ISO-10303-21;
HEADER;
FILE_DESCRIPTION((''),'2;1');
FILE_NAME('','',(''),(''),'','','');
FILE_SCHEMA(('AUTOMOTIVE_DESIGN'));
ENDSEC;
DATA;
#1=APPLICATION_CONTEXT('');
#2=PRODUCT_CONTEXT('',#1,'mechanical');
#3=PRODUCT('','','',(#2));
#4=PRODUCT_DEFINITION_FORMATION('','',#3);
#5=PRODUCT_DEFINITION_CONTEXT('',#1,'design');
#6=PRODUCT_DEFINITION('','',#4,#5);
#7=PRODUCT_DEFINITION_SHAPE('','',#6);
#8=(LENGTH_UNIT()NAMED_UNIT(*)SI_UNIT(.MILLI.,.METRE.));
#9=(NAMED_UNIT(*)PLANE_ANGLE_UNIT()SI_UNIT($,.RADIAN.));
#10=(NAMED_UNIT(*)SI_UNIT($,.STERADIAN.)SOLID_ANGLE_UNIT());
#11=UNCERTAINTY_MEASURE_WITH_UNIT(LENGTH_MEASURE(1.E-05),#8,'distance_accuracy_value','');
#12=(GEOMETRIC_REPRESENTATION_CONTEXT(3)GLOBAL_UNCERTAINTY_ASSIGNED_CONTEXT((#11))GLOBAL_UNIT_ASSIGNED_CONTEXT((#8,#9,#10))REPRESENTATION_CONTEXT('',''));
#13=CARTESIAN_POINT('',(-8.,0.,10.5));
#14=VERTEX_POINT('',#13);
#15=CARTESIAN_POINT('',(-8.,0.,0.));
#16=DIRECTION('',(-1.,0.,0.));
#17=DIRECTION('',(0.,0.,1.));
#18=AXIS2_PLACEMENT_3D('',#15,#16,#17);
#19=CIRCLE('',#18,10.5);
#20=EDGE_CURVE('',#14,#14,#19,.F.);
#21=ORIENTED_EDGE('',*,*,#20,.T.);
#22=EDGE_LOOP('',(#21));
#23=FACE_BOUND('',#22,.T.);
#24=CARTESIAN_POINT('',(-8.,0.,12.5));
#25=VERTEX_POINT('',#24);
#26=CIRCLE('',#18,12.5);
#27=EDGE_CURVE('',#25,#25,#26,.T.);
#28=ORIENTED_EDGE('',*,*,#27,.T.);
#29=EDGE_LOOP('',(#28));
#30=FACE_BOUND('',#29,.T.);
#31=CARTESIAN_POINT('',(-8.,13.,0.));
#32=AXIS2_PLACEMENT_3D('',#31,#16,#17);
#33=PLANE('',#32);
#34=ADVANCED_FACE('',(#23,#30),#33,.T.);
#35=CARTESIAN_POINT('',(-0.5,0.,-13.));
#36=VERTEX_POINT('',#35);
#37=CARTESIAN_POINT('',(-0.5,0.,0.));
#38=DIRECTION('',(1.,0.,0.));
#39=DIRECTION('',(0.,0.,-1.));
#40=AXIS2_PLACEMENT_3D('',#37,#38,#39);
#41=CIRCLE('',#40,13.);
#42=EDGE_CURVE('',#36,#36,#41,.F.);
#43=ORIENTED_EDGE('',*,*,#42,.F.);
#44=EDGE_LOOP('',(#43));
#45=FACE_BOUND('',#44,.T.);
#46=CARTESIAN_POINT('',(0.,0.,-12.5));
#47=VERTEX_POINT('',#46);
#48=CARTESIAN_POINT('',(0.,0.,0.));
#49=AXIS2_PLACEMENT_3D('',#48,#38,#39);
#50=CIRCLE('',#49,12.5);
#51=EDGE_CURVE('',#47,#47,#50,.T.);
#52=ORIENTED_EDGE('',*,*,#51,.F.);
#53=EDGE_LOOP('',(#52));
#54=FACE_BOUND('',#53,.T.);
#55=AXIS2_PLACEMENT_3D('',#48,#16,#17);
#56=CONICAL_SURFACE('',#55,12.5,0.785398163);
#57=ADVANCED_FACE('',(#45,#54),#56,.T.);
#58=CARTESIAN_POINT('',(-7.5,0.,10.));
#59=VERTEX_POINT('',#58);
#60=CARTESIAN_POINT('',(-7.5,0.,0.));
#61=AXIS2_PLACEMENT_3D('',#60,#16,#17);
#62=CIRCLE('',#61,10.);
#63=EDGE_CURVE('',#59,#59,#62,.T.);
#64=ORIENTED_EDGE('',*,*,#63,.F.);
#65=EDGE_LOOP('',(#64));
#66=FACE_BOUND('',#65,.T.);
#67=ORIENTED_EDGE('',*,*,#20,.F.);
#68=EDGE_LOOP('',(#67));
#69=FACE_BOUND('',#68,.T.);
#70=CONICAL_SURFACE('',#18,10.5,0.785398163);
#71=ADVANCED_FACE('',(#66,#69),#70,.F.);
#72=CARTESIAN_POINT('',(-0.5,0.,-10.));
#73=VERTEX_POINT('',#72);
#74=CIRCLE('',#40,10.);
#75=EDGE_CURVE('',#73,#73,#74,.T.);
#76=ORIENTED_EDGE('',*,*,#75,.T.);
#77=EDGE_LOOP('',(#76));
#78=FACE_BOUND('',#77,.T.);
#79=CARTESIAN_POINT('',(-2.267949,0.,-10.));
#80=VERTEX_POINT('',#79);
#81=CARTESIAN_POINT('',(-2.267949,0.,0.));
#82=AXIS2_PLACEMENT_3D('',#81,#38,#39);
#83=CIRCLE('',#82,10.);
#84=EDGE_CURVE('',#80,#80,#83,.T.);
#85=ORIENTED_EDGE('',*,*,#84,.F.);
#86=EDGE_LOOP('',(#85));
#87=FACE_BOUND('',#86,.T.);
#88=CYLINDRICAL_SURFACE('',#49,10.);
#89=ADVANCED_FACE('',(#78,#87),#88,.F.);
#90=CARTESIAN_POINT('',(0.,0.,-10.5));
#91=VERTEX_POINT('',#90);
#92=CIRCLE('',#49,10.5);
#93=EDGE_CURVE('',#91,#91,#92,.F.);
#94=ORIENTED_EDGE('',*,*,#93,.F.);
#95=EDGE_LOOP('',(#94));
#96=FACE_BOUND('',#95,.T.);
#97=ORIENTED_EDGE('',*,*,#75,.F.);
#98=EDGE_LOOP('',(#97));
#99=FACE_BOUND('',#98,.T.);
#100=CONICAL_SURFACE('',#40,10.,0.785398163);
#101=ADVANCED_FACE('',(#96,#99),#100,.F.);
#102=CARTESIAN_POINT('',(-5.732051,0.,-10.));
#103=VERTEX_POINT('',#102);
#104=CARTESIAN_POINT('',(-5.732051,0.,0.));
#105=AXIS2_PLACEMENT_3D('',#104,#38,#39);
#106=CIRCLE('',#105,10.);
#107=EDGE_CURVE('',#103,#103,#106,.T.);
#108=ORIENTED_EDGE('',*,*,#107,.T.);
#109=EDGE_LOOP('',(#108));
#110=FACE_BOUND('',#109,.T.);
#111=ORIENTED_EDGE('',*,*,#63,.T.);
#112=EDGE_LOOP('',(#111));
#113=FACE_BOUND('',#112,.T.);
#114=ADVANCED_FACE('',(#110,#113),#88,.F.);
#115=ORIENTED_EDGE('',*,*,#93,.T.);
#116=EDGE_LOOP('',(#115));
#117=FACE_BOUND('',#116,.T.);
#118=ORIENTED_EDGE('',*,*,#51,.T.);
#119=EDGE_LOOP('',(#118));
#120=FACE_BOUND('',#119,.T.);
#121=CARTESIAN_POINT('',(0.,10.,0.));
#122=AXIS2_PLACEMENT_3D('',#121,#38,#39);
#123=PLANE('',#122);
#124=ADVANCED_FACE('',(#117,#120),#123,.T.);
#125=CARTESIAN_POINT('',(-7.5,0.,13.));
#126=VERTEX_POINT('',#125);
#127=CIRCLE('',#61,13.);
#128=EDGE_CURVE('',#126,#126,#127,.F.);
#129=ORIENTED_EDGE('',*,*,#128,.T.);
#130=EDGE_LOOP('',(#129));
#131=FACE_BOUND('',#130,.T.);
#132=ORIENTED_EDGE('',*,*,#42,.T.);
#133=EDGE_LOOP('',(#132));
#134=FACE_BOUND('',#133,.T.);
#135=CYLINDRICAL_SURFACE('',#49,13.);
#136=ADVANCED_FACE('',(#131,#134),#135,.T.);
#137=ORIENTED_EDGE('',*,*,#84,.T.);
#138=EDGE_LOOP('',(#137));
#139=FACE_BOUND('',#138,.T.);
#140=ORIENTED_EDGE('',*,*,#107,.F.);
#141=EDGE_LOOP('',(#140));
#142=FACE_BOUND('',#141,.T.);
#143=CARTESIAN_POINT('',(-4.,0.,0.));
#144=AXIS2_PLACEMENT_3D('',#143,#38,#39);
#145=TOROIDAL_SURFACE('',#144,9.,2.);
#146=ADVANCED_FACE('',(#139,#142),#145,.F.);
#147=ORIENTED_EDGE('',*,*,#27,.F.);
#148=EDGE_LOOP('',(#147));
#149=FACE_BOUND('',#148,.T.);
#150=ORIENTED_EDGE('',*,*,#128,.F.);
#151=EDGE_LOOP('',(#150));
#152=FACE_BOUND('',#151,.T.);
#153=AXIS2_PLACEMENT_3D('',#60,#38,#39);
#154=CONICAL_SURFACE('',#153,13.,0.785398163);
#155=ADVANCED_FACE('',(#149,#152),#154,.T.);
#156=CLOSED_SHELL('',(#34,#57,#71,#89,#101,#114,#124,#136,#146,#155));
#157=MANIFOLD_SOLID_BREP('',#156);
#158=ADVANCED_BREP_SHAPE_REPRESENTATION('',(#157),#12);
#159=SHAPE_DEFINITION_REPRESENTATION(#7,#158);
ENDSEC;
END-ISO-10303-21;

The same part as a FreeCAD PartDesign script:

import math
import FreeCAD as App
import Part
import Sketcher

V = App.Vector
Q = App.Units.Quantity


def edges_at(feature, points):
    """Names of the edges that pass closest to the given points."""
    edges = feature.Shape.Edges
    near = lambda p: min(range(len(edges)), key=lambda i: edges[i].distToShape(Part.Vertex(*p))[0])
    return sorted({f"Edge{near(p) + 1}" for p in points})

doc = App.newDocument("Part")
body = doc.addObject("PartDesign::Body", "Body")

sketch1 = doc.addObject("Sketcher::SketchObject", "Sketch")
body.addObject(sketch1)
sketch1.AttachmentSupport = (doc.XY_Plane, [""])
sketch1.MapMode = "FlatFace"
sketch1.addGeometry([
    Part.LineSegment(V(0, 10, 0), V(0, 13, 0)),
    Part.LineSegment(V(0, 13, 0), V(-8, 13, 0)),
    Part.LineSegment(V(-8, 13, 0), V(-8, 10, 0)),
    Part.LineSegment(V(-8, 10, 0), V(-5.732051, 10, 0)),
    Part.ArcOfCircle(Part.Circle(V(-4, 9, 0), V(0, 0, 1), 2), math.radians(30), math.radians(150)),
    Part.LineSegment(V(-2.267949, 10, 0), V(0, 10, 0)),
], False)
sketch1.addConstraint([
    Sketcher.Constraint("Coincident", 0, 2, 1, 1),
    Sketcher.Constraint("Coincident", 1, 2, 2, 1),
    Sketcher.Constraint("Coincident", 2, 2, 3, 1),
    Sketcher.Constraint("Coincident", 3, 2, 4, 2),
    Sketcher.Constraint("Coincident", 4, 1, 5, 1),
    Sketcher.Constraint("Coincident", 5, 2, 0, 1),
    Sketcher.Constraint("Vertical", 0),
    Sketcher.Constraint("Horizontal", 1),
    Sketcher.Constraint("Vertical", 2),
    Sketcher.Constraint("Horizontal", 3),
    Sketcher.Constraint("Horizontal", 5),
    Sketcher.Constraint("PointOnObject", 0, 2, -2),
    Sketcher.Constraint("Horizontal", 3, 2, 4, 1),
    Sketcher.Constraint("Equal", 3, 5),
    Sketcher.Constraint("Radius", 4, Q("2 mm")),
    Sketcher.Constraint("DistanceX", 1, 2, 1, 1, Q("8 mm")),
    Sketcher.Constraint("DistanceY", 0, 1, 0, 2, Q("3 mm")),
    Sketcher.Constraint("DistanceY", -1, 1, 4, 3, Q("9 mm")),
    Sketcher.Constraint("DistanceY", -1, 1, 0, 2, Q("13 mm")),
])
revolution = doc.addObject("PartDesign::Revolution", "Revolution")
body.addObject(revolution)
revolution.Profile = sketch1
revolution.ReferenceAxis = (sketch1, ["H_Axis"])
revolution.Angle = 360
doc.recompute()

chamfer = doc.addObject("PartDesign::Chamfer", "Chamfer")
body.addObject(chamfer)
chamfer.Base = (revolution, edges_at(revolution, [
    (0, 0, 10),
    (0, 0, 13),
    (-8, 0, 13),
    (-8, 0, 10),
]))
chamfer.Size = 0.5

doc.recompute()
